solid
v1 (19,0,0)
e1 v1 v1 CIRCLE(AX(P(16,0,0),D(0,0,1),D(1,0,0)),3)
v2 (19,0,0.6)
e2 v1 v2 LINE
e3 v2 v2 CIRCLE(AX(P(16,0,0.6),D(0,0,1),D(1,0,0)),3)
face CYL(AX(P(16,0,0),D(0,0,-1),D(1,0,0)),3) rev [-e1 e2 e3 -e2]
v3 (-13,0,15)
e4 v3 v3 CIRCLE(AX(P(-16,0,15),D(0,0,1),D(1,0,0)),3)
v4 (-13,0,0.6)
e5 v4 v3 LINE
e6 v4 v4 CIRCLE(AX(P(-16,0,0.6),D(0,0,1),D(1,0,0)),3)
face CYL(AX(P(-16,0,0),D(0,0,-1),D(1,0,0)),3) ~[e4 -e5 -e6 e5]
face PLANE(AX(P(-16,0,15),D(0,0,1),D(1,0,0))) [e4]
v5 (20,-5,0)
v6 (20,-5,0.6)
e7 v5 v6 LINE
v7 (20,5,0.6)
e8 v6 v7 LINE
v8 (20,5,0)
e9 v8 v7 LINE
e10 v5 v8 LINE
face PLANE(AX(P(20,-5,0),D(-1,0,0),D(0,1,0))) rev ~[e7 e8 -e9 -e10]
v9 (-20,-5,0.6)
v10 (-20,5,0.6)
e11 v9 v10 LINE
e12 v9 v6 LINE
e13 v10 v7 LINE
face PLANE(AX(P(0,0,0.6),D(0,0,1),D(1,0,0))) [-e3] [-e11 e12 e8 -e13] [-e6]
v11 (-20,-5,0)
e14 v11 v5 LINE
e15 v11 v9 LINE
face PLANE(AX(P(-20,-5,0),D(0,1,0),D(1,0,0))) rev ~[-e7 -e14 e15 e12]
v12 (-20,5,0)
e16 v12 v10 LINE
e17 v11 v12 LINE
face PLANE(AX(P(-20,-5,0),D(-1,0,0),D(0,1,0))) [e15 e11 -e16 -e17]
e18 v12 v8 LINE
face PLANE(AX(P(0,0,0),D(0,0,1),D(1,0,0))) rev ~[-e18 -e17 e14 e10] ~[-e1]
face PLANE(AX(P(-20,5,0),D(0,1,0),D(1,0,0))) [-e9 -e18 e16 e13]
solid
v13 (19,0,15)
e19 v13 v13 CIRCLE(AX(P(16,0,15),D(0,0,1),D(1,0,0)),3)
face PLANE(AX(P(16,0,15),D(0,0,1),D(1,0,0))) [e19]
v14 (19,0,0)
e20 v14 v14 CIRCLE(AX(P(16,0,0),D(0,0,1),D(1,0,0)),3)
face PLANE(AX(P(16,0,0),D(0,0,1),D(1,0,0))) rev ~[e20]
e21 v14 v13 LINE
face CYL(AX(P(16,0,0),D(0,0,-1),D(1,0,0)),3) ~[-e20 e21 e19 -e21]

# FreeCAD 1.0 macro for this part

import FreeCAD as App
import Part
import Sketcher

V = App.Vector

doc = App.newDocument("Part")
body = doc.addObject("PartDesign::Body", "Body")

sketch1 = doc.addObject("Sketcher::SketchObject", "Sketch")
body.addObject(sketch1)
sketch1.AttachmentSupport = (doc.XY_Plane, [""])
sketch1.MapMode = "FlatFace"
sketch1.addGeometry(Part.LineSegment(V(-20, 5, 0), V(-20, -5, 0)), False)
sketch1.addGeometry(Part.LineSegment(V(-20, -5, 0), V(20, -5, 0)), False)
sketch1.addGeometry(Part.LineSegment(V(20, -5, 0), V(20, 5, 0)), False)
sketch1.addGeometry(Part.LineSegment(V(20, 5, 0), V(-20, 5, 0)), False)
sketch1.addGeometry(Part.Circle(V(-16, 0, 0), V(0, 0, 1), 3), False)
sketch1.addGeometry(Part.Circle(V(16, 0, 0), V(0, 0, 1), 3), False)
sketch1.addConstraint(Sketcher.Constraint("Coincident", 0, 2, 1, 1))
sketch1.addConstraint(Sketcher.Constraint("Coincident", 1, 2, 2, 1))
sketch1.addConstraint(Sketcher.Constraint("Coincident", 2, 2, 3, 1))
sketch1.addConstraint(Sketcher.Constraint("Coincident", 3, 2, 0, 1))
sketch1.addConstraint(Sketcher.Constraint("Vertical", 0))
sketch1.addConstraint(Sketcher.Constraint("Horizontal", 1))
sketch1.addConstraint(Sketcher.Constraint("Vertical", 2))
sketch1.addConstraint(Sketcher.Constraint("Horizontal", 3))
sketch1.addConstraint(Sketcher.Constraint("Equal", 4, 5))
sketch1.addConstraint(Sketcher.Constraint("Symmetric", 4, 3, 5, 3, -1, 1))
sketch1.addConstraint(Sketcher.Constraint("Symmetric", 0, 2, 2, 2, -1, 1))
sketch1.addConstraint(Sketcher.Constraint("PointOnObject", 4, 3, -1))
sketch1.addConstraint(Sketcher.Constraint("Diameter", 4, 6.0))
sketch1.addConstraint(Sketcher.Constraint("DistanceX", 1, 1, 1, 2, 40.0))
sketch1.addConstraint(Sketcher.Constraint("DistanceY", 0, 2, 0, 1, 10.0))
sketch1.addConstraint(Sketcher.Constraint("DistanceX", 4, 3, -1, 1, 16.0))
pad1 = doc.addObject("PartDesign::Pad", "Pad")
body.addObject(pad1)
pad1.Profile = sketch1
pad1.Length = 0.6

sketch2 = doc.addObject("Sketcher::SketchObject", "Sketch001")
body.addObject(sketch2)
sketch2.AttachmentSupport = (doc.XY_Plane, [""])
sketch2.MapMode = "FlatFace"
sketch2.addGeometry(Part.Circle(V(-16, 0, 0), V(0, 0, 1), 3), False)
sketch2.addConstraint(Sketcher.Constraint("PointOnObject", 0, 3, -1))
sketch2.addConstraint(Sketcher.Constraint("Diameter", 0, 6.0))
sketch2.addConstraint(Sketcher.Constraint("DistanceX", 0, 3, -1, 1, 16.0))
pad2 = doc.addObject("PartDesign::Pad", "Pad001")
body.addObject(pad2)
pad2.Profile = sketch2
pad2.Length = 15
body2 = doc.addObject("PartDesign::Body", "Body001")

sketch3 = doc.addObject("Sketcher::SketchObject", "Sketch002")
body2.addObject(sketch3)
sketch3.AttachmentSupport = (doc.getObject("XY_Plane001"), [""])
sketch3.MapMode = "FlatFace"
sketch3.addGeometry(Part.Circle(V(16, 0, 0), V(0, 0, 1), 3), False)
sketch3.addConstraint(Sketcher.Constraint("PointOnObject", 0, 3, -1))
sketch3.addConstraint(Sketcher.Constraint("Diameter", 0, 6.0))
sketch3.addConstraint(Sketcher.Constraint("DistanceX", -1, 1, 0, 3, 16.0))
pad3 = doc.addObject("PartDesign::Pad", "Pad002")
body2.addObject(pad3)
pad3.Profile = sketch3
pad3.Length = 15

doc.recompute()
